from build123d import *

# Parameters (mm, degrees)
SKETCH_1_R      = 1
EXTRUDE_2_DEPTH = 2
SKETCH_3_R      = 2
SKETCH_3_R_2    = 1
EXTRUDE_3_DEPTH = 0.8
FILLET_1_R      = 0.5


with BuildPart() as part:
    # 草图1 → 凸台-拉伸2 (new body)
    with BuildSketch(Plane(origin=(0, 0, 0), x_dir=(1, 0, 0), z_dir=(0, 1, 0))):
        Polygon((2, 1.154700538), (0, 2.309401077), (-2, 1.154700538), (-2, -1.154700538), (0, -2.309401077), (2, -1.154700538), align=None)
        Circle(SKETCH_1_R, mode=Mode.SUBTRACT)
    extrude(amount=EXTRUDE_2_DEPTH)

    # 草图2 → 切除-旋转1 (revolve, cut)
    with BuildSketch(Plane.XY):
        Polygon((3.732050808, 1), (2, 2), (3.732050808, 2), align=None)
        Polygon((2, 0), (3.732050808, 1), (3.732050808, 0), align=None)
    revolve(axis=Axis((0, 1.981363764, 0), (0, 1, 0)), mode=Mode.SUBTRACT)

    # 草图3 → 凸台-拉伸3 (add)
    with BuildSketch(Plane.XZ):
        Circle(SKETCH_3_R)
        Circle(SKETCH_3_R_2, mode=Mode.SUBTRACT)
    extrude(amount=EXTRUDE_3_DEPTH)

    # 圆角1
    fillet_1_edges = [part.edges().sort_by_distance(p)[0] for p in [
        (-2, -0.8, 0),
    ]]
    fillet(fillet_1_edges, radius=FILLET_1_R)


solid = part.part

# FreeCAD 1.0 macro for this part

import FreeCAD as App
import Part
import Sketcher
Q = App.Units.Quantity


def edges_at(feature, points):
    """Names of the edges that pass closest to the given points."""
    edges = feature.Shape.Edges
    near = lambda p: min(range(len(edges)), key=lambda i: edges[i].distToShape(Part.Vertex(*p))[0])
    return sorted({f"Edge{near(p) + 1}" for p in points})

doc = App.newDocument("Part")
params = doc.addObject("Spreadsheet::Sheet", "Params")
for row, (alias, value) in enumerate([
    ("sketch1_diameter", "2 mm"),
    ("pad1_length", "2 mm"),
    ("sketch2_height", "1 mm"),
    ("groove_angle", "360 deg"),
    ("sketch3_diameter", "4 mm"),
    ("sketch3_diameter2", "2 mm"),
    ("pad2_length", "0.8 mm"),
    ("fillet_radius", "0.5 mm"),
], start=1):
    params.set(f"A{row}", alias)
    params.set(f"B{row}", "=" + value)
    params.setAlias(f"B{row}", alias)

body = doc.addObject("PartDesign::Body", "Body")

sketch1 = body.newObject("Sketcher::SketchObject", "Sketch")
sketch1.AttachmentSupport = (doc.getObject("XZ_Plane"), [""])
sketch1.MapMode = "FlatFace"
sketch1.addGeometry([
    Part.LineSegment(App.Vector(2, -1.2, 0), App.Vector(0, -2.3, 0)),
    Part.LineSegment(App.Vector(0, -2.3, 0), App.Vector(-2, -1.2, 0)),
    Part.LineSegment(App.Vector(-2, -1.2, 0), App.Vector(-2, 1.2, 0)),
    Part.LineSegment(App.Vector(-2, 1.2, 0), App.Vector(0, 2.3, 0)),
    Part.LineSegment(App.Vector(0, 2.3, 0), App.Vector(2, 1.2, 0)),
    Part.LineSegment(App.Vector(2, 1.2, 0), App.Vector(2, -1.2, 0)),
    Part.Circle(App.Vector(0, 0, 0), App.Vector(0, 0, 1), 1),
], False)
sketch1.addConstraint([
    Sketcher.Constraint("Coincident", 0, 2, 1, 1),
    Sketcher.Constraint("Coincident", 1, 2, 2, 1),
    Sketcher.Constraint("Coincident", 2, 2, 3, 1),
    Sketcher.Constraint("Coincident", 3, 2, 4, 1),
    Sketcher.Constraint("Coincident", 4, 2, 5, 1),
    Sketcher.Constraint("Coincident", 5, 2, 0, 1),
    Sketcher.Constraint("Vertical", 2),
    Sketcher.Constraint("Vertical", 5),
    Sketcher.Constraint("Coincident", 6, 3, -1, 1),
    Sketcher.Constraint("Symmetric", 0, 2, 3, 2, -1, 1),
    Sketcher.Constraint("Symmetric", 1, 2, 4, 2, -1, 1),
    Sketcher.Constraint("PointOnObject", 0, 2, -2),
    Sketcher.Constraint("Parallel", 0, 3),
    Sketcher.Constraint("Horizontal", 2, 2, 4, 2),
    Sketcher.Constraint("Diameter", 6, 2.0),
    Sketcher.Constraint("Angle", 0, Q("-150 deg")),
    Sketcher.Constraint("DistanceX", 1, 2, -1, 1, 2.0),
    Sketcher.Constraint("DistanceY", 2, 1, 2, 2, 2.309401),
])
sketch1.setExpression("Constraints[14]", "Params.sketch1_diameter")
pad1 = body.newObject("PartDesign::Pad", "Pad")
pad1.Profile = sketch1
pad1.setExpression("Length", "Params.pad1_length")
pad1.Reversed = True

sketch2 = body.newObject("Sketcher::SketchObject", "Sketch001")
sketch2.AttachmentSupport = (doc.getObject("XY_Plane"), [""])
sketch2.MapMode = "FlatFace"
sketch2.addGeometry([
    Part.LineSegment(App.Vector(2, 2, 0), App.Vector(3.7, 1, 0)),
    Part.LineSegment(App.Vector(3.7, 1, 0), App.Vector(3.7, 2, 0)),
    Part.LineSegment(App.Vector(3.7, 2, 0), App.Vector(2, 2, 0)),
    Part.LineSegment(App.Vector(3.7, 1, 0), App.Vector(2, 0, 0)),
    Part.LineSegment(App.Vector(2, 0, 0), App.Vector(3.7, 0, 0)),
    Part.LineSegment(App.Vector(3.7, 0, 0), App.Vector(3.7, 1, 0)),
], False)
sketch2.addConstraint([
    Sketcher.Constraint("Coincident", 0, 2, 1, 1),
    Sketcher.Constraint("Coincident", 1, 2, 2, 1),
    Sketcher.Constraint("Coincident", 2, 2, 0, 1),
    Sketcher.Constraint("Coincident", 3, 2, 4, 1),
    Sketcher.Constraint("Coincident", 4, 2, 5, 1),
    Sketcher.Constraint("Coincident", 5, 2, 3, 1),
    Sketcher.Constraint("Vertical", 1),
    Sketcher.Constraint("Horizontal", 2),
    Sketcher.Constraint("Horizontal", 4),
    Sketcher.Constraint("Vertical", 5),
    Sketcher.Constraint("Coincident", 5, 2, 0, 2),
    Sketcher.Constraint("PointOnObject", 3, 2, -1),
    Sketcher.Constraint("Vertical", 2, 2, 3, 2),
    Sketcher.Constraint("Equal", 1, 5),
    Sketcher.Constraint("DistanceY", 1, 1, 1, 2, 1.0),
    Sketcher.Constraint("Angle", 0, Q("-30 deg")),
    Sketcher.Constraint("DistanceX", -1, 1, 2, 2, 2.0),
])
sketch2.setExpression("Constraints[14]", "Params.sketch2_height")
groove = body.newObject("PartDesign::Groove", "Groove")
groove.Profile = sketch2
groove.ReferenceAxis = (sketch2, ["V_Axis"])
groove.setExpression("Angle", "Params.groove_angle")

sketch3 = body.newObject("Sketcher::SketchObject", "Sketch002")
sketch3.AttachmentSupport = (doc.getObject("XZ_Plane"), [""])
sketch3.MapMode = "FlatFace"
sketch3.addGeometry([
    Part.Circle(App.Vector(0, 0, 0), App.Vector(0, 0, 1), 2),
    Part.Circle(App.Vector(0, 0, 0), App.Vector(0, 0, 1), 1),
], False)
sketch3.addConstraint([
    Sketcher.Constraint("Coincident", 0, 3, -1, 1),
    Sketcher.Constraint("Coincident", 1, 3, -1, 1),
    Sketcher.Constraint("Diameter", 0, 4.0),
    Sketcher.Constraint("Diameter", 1, 2.0),
])
sketch3.setExpression("Constraints[2]", "Params.sketch3_diameter")
sketch3.setExpression("Constraints[3]", "Params.sketch3_diameter2")
pad2 = body.newObject("PartDesign::Pad", "Pad001")
pad2.Profile = sketch3
pad2.setExpression("Length", "Params.pad2_length")
doc.recompute()

fillet = body.newObject("PartDesign::Fillet", "Fillet")
fillet.Base = (pad2, edges_at(pad2, [(-2, -0.8, 0)]))
fillet.setExpression("Radius", "Params.fillet_radius")

doc.recompute()
